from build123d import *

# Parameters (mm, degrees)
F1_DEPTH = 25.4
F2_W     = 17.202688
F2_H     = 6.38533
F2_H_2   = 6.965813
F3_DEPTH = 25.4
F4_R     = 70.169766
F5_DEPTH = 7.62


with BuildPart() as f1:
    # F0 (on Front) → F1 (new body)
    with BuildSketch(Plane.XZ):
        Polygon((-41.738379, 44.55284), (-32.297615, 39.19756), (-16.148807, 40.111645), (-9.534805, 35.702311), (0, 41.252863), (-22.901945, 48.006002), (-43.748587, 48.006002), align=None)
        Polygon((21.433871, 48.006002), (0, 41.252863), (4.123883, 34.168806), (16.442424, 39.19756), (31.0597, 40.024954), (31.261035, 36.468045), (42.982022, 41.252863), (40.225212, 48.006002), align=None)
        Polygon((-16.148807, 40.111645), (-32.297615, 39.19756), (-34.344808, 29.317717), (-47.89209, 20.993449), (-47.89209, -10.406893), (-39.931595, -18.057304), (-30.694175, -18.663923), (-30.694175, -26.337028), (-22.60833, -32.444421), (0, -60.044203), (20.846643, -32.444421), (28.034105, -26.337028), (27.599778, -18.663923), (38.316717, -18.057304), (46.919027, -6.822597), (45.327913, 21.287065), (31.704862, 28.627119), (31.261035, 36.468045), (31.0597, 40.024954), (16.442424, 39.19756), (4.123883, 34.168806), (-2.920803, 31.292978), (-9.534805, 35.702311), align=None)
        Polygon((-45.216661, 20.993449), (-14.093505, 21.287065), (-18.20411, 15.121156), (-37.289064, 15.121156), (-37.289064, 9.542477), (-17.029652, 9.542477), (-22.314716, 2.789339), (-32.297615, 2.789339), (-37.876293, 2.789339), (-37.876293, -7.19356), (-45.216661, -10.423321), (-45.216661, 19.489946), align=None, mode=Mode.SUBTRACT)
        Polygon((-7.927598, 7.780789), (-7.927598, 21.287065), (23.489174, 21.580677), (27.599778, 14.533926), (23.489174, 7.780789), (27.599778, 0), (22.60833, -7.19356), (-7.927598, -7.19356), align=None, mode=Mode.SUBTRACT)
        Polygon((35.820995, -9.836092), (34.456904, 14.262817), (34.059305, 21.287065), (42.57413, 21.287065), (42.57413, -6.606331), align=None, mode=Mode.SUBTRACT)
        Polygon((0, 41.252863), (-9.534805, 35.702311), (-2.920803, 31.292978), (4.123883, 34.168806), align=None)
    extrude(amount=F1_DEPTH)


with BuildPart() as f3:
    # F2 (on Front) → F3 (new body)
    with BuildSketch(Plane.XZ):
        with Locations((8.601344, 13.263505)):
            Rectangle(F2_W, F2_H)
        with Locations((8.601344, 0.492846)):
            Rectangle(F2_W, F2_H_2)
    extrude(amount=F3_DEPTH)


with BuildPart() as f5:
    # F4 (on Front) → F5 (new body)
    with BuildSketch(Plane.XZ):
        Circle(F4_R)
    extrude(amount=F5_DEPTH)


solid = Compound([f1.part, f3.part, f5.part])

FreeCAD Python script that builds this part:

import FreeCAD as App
import Part
import Sketcher
from FreeCAD import Vector
Q = App.Units.Quantity


def add_polygon(sketch, points):
    """Adds a closed chain of lines whose ends are joined by coincident constraints."""
    first, n = sketch.GeometryCount, len(points)
    for a, b in zip(points, points[1:] + points[:1]):
        sketch.addGeometry(Part.LineSegment(App.Vector(*a, 0), App.Vector(*b, 0)), False)
    for i in range(n):
        sketch.addConstraint(Sketcher.Constraint("Coincident", first + i, 2, first + (i + 1) % n, 1))

doc = App.newDocument("Part")
params = doc.addObject("Spreadsheet::Sheet", "Params")
for row, (alias, value) in enumerate([
    ("pad1_length", "1 in"),
    ("pad2_length", "1 in"),
    ("pad3_length", "0.3 in"),
], start=1):
    params.set(f"A{row}", alias)
    params.set(f"B{row}", "=" + value)
    params.setAlias(f"B{row}", alias)

body = doc.addObject("PartDesign::Body", "Body")

sketch1 = body.newObject("Sketcher::SketchObject", "Sketch")
sketch1.AttachmentSupport = (doc.getObject("XZ_Plane"), [""])
sketch1.MapMode = "FlatFace"
add_polygon(sketch1, [(-41.738379, 44.55284), (-32.297615, 39.19756), (-34.344808, 29.317717), (-47.89209, 20.993449), (-47.89209, -10.406893), (-39.931595, -18.057304), (-30.694175, -18.663923), (-30.694175, -26.337028), (-22.60833, -32.444421), (0, -60.044203), (20.846643, -32.444421), (28.034105, -26.337028), (27.599778, -18.663923), (38.316717, -18.057304), (46.919027, -6.822597), (45.327913, 21.287065), (31.704862, 28.627119), (31.261035, 36.468045), (42.982022, 41.252863), (40.225212, 48.006002), (21.433871, 48.006002), (0, 41.252863), (-22.901945, 48.006002), (-43.748587, 48.006002)])
add_polygon(sketch1, [(-45.216661, -10.423321), (-45.216661, 20.993449), (-14.093505, 21.287065), (-18.20411, 15.121156), (-37.289064, 15.121156), (-37.289064, 9.542477), (-17.029652, 9.542477), (-22.314716, 2.789339), (-37.876293, 2.789339), (-37.876293, -7.19356)])
add_polygon(sketch1, [(-7.927598, -7.19356), (-7.927598, 21.287065), (23.489174, 21.580677), (27.599778, 14.533926), (23.489174, 7.780789), (27.599778, 0), (22.60833, -7.19356)])
add_polygon(sketch1, [(42.57413, -6.606331), (35.820995, -9.836092), (34.456904, 14.262817), (34.059305, 21.287065), (42.57413, 21.287065)])
sketch1.addConstraint(Sketcher.Constraint("Vertical", 3))
sketch1.addConstraint(Sketcher.Constraint("Vertical", 6))
sketch1.addConstraint(Sketcher.Constraint("Horizontal", 19))
sketch1.addConstraint(Sketcher.Constraint("Horizontal", 22))
sketch1.addConstraint(Sketcher.Constraint("Vertical", 24))
sketch1.addConstraint(Sketcher.Constraint("Horizontal", 27))
sketch1.addConstraint(Sketcher.Constraint("Vertical", 28))
sketch1.addConstraint(Sketcher.Constraint("Horizontal", 29))
sketch1.addConstraint(Sketcher.Constraint("Horizontal", 31))
sketch1.addConstraint(Sketcher.Constraint("Vertical", 32))
sketch1.addConstraint(Sketcher.Constraint("Vertical", 34))
sketch1.addConstraint(Sketcher.Constraint("Horizontal", 40))
sketch1.addConstraint(Sketcher.Constraint("Horizontal", 44))
sketch1.addConstraint(Sketcher.Constraint("Vertical", 45))
sketch1.addConstraint(Sketcher.Constraint("PointOnObject", 8, 2, -2))
sketch1.addConstraint(Sketcher.Constraint("PointOnObject", 20, 2, -2))
sketch1.addConstraint(Sketcher.Constraint("PointOnObject", 38, 2, -1))
sketch1.addConstraint(Sketcher.Constraint("DistanceY", -1, 1, 18, 2, Q("1.8900001 in")))
sketch1.addConstraint(Sketcher.Constraint("DistanceY", -1, 1, 21, 2, Q("1.8900001 in")))
sketch1.addConstraint(Sketcher.Constraint("DistanceX", 17, 2, 13, 2, Q("0.1550002 in")))
sketch1.addConstraint(Sketcher.Constraint("DistanceY", 32, 2, 32, 1, 9.982899))
sketch1.addConstraint(Sketcher.Constraint("DistanceY", 5, 2, -1, 1, Q("0.7348001 in")))
sketch1.addConstraint(Sketcher.Constraint("DistanceY", 11, 2, -1, 1, Q("0.7348001 in")))
sketch1.addConstraint(Sketcher.Constraint("Distance", 26, 7.4105))
sketch1.addConstraint(Sketcher.Constraint("Distance", 33, 8.019499))
sketch1.addConstraint(Sketcher.Constraint("DistanceX", 19, 2, 19, 1, 18.791341))
sketch1.addConstraint(Sketcher.Constraint("DistanceX", 22, 2, 22, 1, 20.846642))
sketch1.addConstraint(Sketcher.Constraint("DistanceY", 3, 2, 3, 1, 31.400342))
sketch1.addConstraint(Sketcher.Constraint("DistanceY", 24, 1, 24, 2, 31.41677))
sketch1.addConstraint(Sketcher.Constraint("DistanceY", 28, 2, 28, 1, 5.578679))
sketch1.addConstraint(Sketcher.Constraint("DistanceY", 8, 2, 4, 2, 41.986899))
sketch1.addConstraint(Sketcher.Constraint("DistanceY", 8, 2, 12, 2, 41.986899))
sketch1.addConstraint(Sketcher.Constraint("DistanceX", 18, 2, 14, 2, 5.102701))
sketch1.addConstraint(Sketcher.Constraint("DistanceY", 13, 2, 18, 2, 54.828599))
sketch1.addConstraint(Sketcher.Constraint("DistanceX", 1, 2, 26, 2, 16.140698))
sketch1.addConstraint(Sketcher.Constraint("DistanceY", 40, 2, 30, 2, 9.982899))
sketch1.addConstraint(Sketcher.Constraint("DistanceX", 43, 2, 42, 2, 0.397599))
sketch1.addConstraint(Sketcher.Constraint("Distance", 7, 10.13317))
sketch1.addConstraint(Sketcher.Constraint("Distance", 9, 34.588011))
sketch1.addConstraint(Sketcher.Constraint("Distance", 15, 15.474622))
sketch1.addConstraint(Sketcher.Constraint("Distance", 18, 7.294168))
sketch1.addConstraint(Sketcher.Constraint("Distance", 21, 23.87685))
sketch1.addConstraint(Sketcher.Constraint("Distance", 25, 31.124541))
sketch1.addConstraint(Sketcher.Constraint("Distance", 30, 8.575359))
sketch1.addConstraint(Sketcher.Constraint("Distance", 36, 8.158049))
sketch1.addConstraint(Sketcher.Constraint("Distance", 38, 8.799872))
sketch1.addConstraint(Sketcher.Constraint("Distance", 43, 7.035492))
sketch1.addConstraint(Sketcher.Constraint("DistanceX", 27, 2, 27, 1, 19.084954))
sketch1.addConstraint(Sketcher.Constraint("DistanceX", 29, 1, 29, 2, 20.259412))
sketch1.addConstraint(Sketcher.Constraint("DistanceX", 31, 2, 31, 1, 15.561577))
sketch1.addConstraint(Sketcher.Constraint("DistanceX", 40, 2, 40, 1, 30.535928))
sketch1.addConstraint(Sketcher.Constraint("DistanceX", 44, 1, 44, 2, 8.514825))
sketch1.addConstraint(Sketcher.Constraint("DistanceY", 6, 2, 6, 1, 7.673105))
sketch1.addConstraint(Sketcher.Constraint("DistanceY", 34, 1, 34, 2, 28.480625))
sketch1.addConstraint(Sketcher.Constraint("DistanceY", 45, 2, 45, 1, 27.893396))
sketch1.addConstraint(Sketcher.Constraint("DistanceY", -1, 1, 0, 2, 39.19756))
sketch1.addConstraint(Sketcher.Constraint("DistanceX", 2, 2, -1, 1, 47.89209))
sketch1.addConstraint(Sketcher.Constraint("DistanceY", -1, 1, 2, 2, 20.993449))
sketch1.addConstraint(Sketcher.Constraint("DistanceX", 7, 2, -1, 1, 22.60833))
sketch1.addConstraint(Sketcher.Constraint("DistanceY", 7, 2, -1, 1, 32.444421))
sketch1.addConstraint(Sketcher.Constraint("DistanceY", 9, 2, -1, 1, 32.444421))
sketch1.addConstraint(Sketcher.Constraint("DistanceY", 10, 2, -1, 1, 26.337028))
sketch1.addConstraint(Sketcher.Constraint("DistanceX", -1, 1, 11, 2, 27.599778))
sketch1.addConstraint(Sketcher.Constraint("DistanceX", -1, 1, 15, 2, 31.704862))
sketch1.addConstraint(Sketcher.Constraint("DistanceY", -1, 1, 15, 2, 28.627119))
sketch1.addConstraint(Sketcher.Constraint("DistanceX", -1, 1, 19, 2, 21.433871))
sketch1.addConstraint(Sketcher.Constraint("DistanceX", 23, 2, -1, 1, 41.738379))
sketch1.addConstraint(Sketcher.Constraint("DistanceY", -1, 1, 23, 2, 44.55284))
sketch1.addConstraint(Sketcher.Constraint("DistanceX", 24, 2, -1, 1, 45.216661))
sketch1.addConstraint(Sketcher.Constraint("DistanceY", -1, 1, 24, 2, 20.993449))
sketch1.addConstraint(Sketcher.Constraint("DistanceX", 26, 2, -1, 1, 18.20411))
sketch1.addConstraint(Sketcher.Constraint("DistanceY", -1, 1, 30, 2, 2.789339))
sketch1.addConstraint(Sketcher.Constraint("DistanceX", -1, 1, 36, 2, 27.599778))
sketch1.addConstraint(Sketcher.Constraint("DistanceY", -1, 1, 37, 2, 7.780789))
sketch1.addConstraint(Sketcher.Constraint("DistanceX", -1, 1, 38, 2, 27.599778))
sketch1.addConstraint(Sketcher.Constraint("DistanceX", -1, 1, 39, 2, 22.60833))
sketch1.addConstraint(Sketcher.Constraint("DistanceX", -1, 1, 44, 2, 42.57413))
sketch1.addConstraint(Sketcher.Constraint("DistanceY", 45, 2, -1, 1, 6.606331))
sketch1.addConstraint(Sketcher.Constraint("DistanceY", 3, 2, 1, 2, 39.72461))
sketch1.addConstraint(Sketcher.Constraint("DistanceY", 4, 2, 3, 2, 7.650411))
sketch1.addConstraint(Sketcher.Constraint("DistanceX", 4, 2, 0, 2, 7.63398))
sketch1.addConstraint(Sketcher.Constraint("DistanceX", 4, 2, 5, 2, 9.23742))
sketch1.addConstraint(Sketcher.Constraint("DistanceX", 6, 2, 10, 2, 58.72828))
sketch1.addConstraint(Sketcher.Constraint("DistanceX", 11, 2, 12, 2, 10.716939))
sketch1.addConstraint(Sketcher.Constraint("DistanceX", 12, 2, 13, 2, 8.60231))
sketch1.addConstraint(Sketcher.Constraint("DistanceX", 16, 2, 14, 2, 14.066878))
sketch1.addConstraint(Sketcher.Constraint("DistanceY", 14, 2, 16, 2, 15.18098))
sketch1.addConstraint(Sketcher.Constraint("DistanceY", 20, 2, 19, 2, 6.753139))
sketch1.addConstraint(Sketcher.Constraint("DistanceY", 35, 2, 15, 2, 7.046442))
sketch1.addConstraint(Sketcher.Constraint("DistanceX", 35, 2, 16, 2, 7.771861))
sketch1.addConstraint(Sketcher.Constraint("DistanceX", 41, 2, 12, 2, 2.495722))
sketch1.addConstraint(Sketcher.Constraint("DistanceY", 12, 2, 41, 2, 8.221212))
pad1 = body.newObject("PartDesign::Pad", "Pad")
pad1.Profile = sketch1
pad1.setExpression("Length", "Params.pad1_length")
body2 = doc.addObject("PartDesign::Body", "Body001")
body2.AllowCompound = True

sketch2 = body2.newObject("Sketcher::SketchObject", "Sketch001")
sketch2.AttachmentSupport = (doc.getObject("XZ_Plane001"), [""])
sketch2.MapMode = "FlatFace"
add_polygon(sketch2, [(0, 16), (0, 10), (17, 10), (17, 16)])
add_polygon(sketch2, [(0, 4), (0, -3), (17, -3), (17, 4)])
sketch2.addConstraint(Sketcher.Constraint("Vertical", 0))
sketch2.addConstraint(Sketcher.Constraint("Horizontal", 1))
sketch2.addConstraint(Sketcher.Constraint("Vertical", 2))
sketch2.addConstraint(Sketcher.Constraint("Horizontal", 3))
sketch2.addConstraint(Sketcher.Constraint("Vertical", 4))
sketch2.addConstraint(Sketcher.Constraint("Horizontal", 5))
sketch2.addConstraint(Sketcher.Constraint("Vertical", 6))
sketch2.addConstraint(Sketcher.Constraint("Horizontal", 7))
sketch2.addConstraint(Sketcher.Constraint("PointOnObject", 0, 2, -2))
sketch2.addConstraint(Sketcher.Constraint("PointOnObject", 4, 2, -2))
sketch2.addConstraint(Sketcher.Constraint("Vertical", 2, 2, 5, 2))
sketch2.addConstraint(Sketcher.Constraint("DistanceY", 0, 2, 0, 1, 6.38533))
sketch2.addConstraint(Sketcher.Constraint("DistanceY", 4, 2, 0, 2, 13.060901))
sketch2.addConstraint(Sketcher.Constraint("DistanceX", 1, 1, 1, 2, 17.202688))
sketch2.addConstraint(Sketcher.Constraint("DistanceY", 4, 2, 4, 1, 6.965813))
sketch2.addConstraint(Sketcher.Constraint("DistanceY", -1, 1, 0, 2, 10.07084))
pad2 = body2.newObject("PartDesign::Pad", "Pad001")
pad2.Profile = sketch2
pad2.setExpression("Length", "Params.pad2_length")
body3 = doc.addObject("PartDesign::Body", "Body002")

sketch3 = body3.newObject("Sketcher::SketchObject", "Sketch002")
sketch3.AttachmentSupport = (doc.getObject("XZ_Plane002"), [""])
sketch3.MapMode = "FlatFace"
sketch3.addGeometry(Part.Circle(Vector(0, 0, 0), Vector(0, 0, 1), 70), False)
sketch3.addConstraint(Sketcher.Constraint("Coincident", 0, 3, -1, 1))
sketch3.addConstraint(Sketcher.Constraint("Diameter", 0, 140.339532))
pad3 = body3.newObject("PartDesign::Pad", "Pad002")
pad3.Profile = sketch3
pad3.setExpression("Length", "Params.pad3_length")

doc.recompute()
